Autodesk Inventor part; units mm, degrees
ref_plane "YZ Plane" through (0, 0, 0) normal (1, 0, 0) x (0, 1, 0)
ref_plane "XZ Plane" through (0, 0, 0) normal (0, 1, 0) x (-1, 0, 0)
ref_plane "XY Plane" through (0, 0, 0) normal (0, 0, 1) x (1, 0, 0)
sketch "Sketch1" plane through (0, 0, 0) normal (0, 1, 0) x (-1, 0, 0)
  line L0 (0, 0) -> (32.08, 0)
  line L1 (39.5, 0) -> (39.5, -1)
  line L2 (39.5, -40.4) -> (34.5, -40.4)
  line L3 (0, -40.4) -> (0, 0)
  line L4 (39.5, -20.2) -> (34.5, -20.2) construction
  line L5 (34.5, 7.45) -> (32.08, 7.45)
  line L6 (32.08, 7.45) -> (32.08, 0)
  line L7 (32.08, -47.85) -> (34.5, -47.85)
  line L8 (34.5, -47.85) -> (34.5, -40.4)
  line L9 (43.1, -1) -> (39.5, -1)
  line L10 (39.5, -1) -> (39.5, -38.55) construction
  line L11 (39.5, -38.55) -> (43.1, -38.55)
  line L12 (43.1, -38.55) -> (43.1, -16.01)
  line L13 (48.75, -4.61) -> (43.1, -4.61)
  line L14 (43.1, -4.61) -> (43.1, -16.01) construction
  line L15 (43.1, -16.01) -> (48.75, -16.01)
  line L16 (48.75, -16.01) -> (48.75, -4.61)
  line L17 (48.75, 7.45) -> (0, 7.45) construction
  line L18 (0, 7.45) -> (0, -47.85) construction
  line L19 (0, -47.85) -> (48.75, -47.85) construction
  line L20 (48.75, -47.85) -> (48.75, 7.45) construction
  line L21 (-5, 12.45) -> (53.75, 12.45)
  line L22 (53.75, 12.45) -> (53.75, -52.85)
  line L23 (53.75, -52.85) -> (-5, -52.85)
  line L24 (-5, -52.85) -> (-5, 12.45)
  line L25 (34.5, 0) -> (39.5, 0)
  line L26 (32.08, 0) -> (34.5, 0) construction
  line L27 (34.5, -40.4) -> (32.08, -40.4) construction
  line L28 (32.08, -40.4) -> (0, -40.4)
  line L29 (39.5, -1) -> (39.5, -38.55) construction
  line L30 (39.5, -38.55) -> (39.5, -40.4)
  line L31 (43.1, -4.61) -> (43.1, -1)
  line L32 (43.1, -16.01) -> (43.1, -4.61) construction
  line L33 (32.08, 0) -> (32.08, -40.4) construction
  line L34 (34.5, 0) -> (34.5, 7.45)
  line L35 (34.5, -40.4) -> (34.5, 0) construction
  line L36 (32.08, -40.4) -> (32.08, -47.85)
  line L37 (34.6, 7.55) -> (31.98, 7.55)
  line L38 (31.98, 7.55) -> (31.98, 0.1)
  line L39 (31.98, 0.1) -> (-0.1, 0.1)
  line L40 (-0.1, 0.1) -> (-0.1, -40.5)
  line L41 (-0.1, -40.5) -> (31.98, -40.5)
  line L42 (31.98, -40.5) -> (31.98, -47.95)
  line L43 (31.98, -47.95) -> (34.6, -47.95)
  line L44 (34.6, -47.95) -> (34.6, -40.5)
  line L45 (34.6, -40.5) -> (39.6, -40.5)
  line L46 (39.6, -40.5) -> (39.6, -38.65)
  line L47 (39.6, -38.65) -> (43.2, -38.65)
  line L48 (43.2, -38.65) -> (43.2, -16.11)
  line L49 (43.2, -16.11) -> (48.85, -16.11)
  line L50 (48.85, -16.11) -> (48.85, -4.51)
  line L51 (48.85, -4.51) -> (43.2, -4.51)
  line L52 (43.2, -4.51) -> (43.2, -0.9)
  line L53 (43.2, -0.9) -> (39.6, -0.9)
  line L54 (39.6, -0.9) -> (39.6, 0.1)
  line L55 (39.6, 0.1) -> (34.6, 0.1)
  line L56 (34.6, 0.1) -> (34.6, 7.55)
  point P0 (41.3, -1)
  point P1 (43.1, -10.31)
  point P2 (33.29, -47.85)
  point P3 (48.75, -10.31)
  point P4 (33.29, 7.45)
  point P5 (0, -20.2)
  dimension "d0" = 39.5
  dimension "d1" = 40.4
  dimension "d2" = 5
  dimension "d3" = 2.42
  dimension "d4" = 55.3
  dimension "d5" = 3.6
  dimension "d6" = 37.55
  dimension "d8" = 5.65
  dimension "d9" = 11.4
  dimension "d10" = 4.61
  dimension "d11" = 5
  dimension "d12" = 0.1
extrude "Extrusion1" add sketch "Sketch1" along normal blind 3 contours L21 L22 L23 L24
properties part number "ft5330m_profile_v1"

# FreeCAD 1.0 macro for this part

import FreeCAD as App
import Part
import Sketcher

V = App.Vector
Q = App.Units.Quantity

doc = App.newDocument("Part")
body = doc.addObject("PartDesign::Body", "Body")

# Sketch on XZ plane
sketch1 = doc.addObject("Sketcher::SketchObject", "Sketch")
body.addObject(sketch1)
sketch1.AttachmentSupport = (doc.XZ_Plane, [""])
sketch1.MapMode = "FlatFace"
sketch1.addGeometry(Part.LineSegment(V(-53.75, 12.45, 0), V(5, 12.45, 0)), False)
sketch1.addGeometry(Part.LineSegment(V(5, 12.45, 0), V(5, -52.85, 0)), False)
sketch1.addGeometry(Part.LineSegment(V(5, -52.85, 0), V(-53.75, -52.85, 0)), False)
sketch1.addGeometry(Part.LineSegment(V(-53.75, -52.85, 0), V(-53.75, 12.45, 0)), False)
sketch1.addGeometry(Part.LineSegment(V(-31.98, 7.55, 0), V(-34.6, 7.55, 0)), False)
sketch1.addGeometry(Part.LineSegment(V(-34.6, 7.55, 0), V(-34.6, 0.1, 0)), False)
sketch1.addGeometry(Part.LineSegment(V(-34.6, 0.1, 0), V(-39.6, 0.1, 0)), False)
sketch1.addGeometry(Part.LineSegment(V(-39.6, 0.1, 0), V(-39.6, -0.9, 0)), False)
sketch1.addGeometry(Part.LineSegment(V(-39.6, -0.9, 0), V(-43.2, -0.9, 0)), False)
sketch1.addGeometry(Part.LineSegment(V(-43.2, -0.9, 0), V(-43.2, -4.51, 0)), False)
sketch1.addGeometry(Part.LineSegment(V(-43.2, -4.51, 0), V(-48.85, -4.51, 0)), False)
sketch1.addGeometry(Part.LineSegment(V(-48.85, -4.51, 0), V(-48.85, -16.11, 0)), False)
sketch1.addGeometry(Part.LineSegment(V(-48.85, -16.11, 0), V(-43.2, -16.11, 0)), False)
sketch1.addGeometry(Part.LineSegment(V(-43.2, -16.11, 0), V(-43.2, -38.65, 0)), False)
sketch1.addGeometry(Part.LineSegment(V(-43.2, -38.65, 0), V(-39.6, -38.65, 0)), False)
sketch1.addGeometry(Part.LineSegment(V(-39.6, -38.65, 0), V(-39.6, -40.5, 0)), False)
sketch1.addGeometry(Part.LineSegment(V(-39.6, -40.5, 0), V(-34.6, -40.5, 0)), False)
sketch1.addGeometry(Part.LineSegment(V(-34.6, -40.5, 0), V(-34.6, -47.95, 0)), False)
sketch1.addGeometry(Part.LineSegment(V(-34.6, -47.95, 0), V(-31.98, -47.95, 0)), False)
sketch1.addGeometry(Part.LineSegment(V(-31.98, -47.95, 0), V(-31.98, -40.5, 0)), False)
sketch1.addGeometry(Part.LineSegment(V(-31.98, -40.5, 0), V(0.1, -40.5, 0)), False)
sketch1.addGeometry(Part.LineSegment(V(0.1, -40.5, 0), V(0.1, 0.1, 0)), False)
sketch1.addGeometry(Part.LineSegment(V(0.1, 0.1, 0), V(-31.98, 0.1, 0)), False)
sketch1.addGeometry(Part.LineSegment(V(-31.98, 0.1, 0), V(-31.98, 7.55, 0)), False)
sketch1.addConstraint(Sketcher.Constraint("Coincident", 0, 2, 1, 1))
sketch1.addConstraint(Sketcher.Constraint("Coincident", 1, 2, 2, 1))
sketch1.addConstraint(Sketcher.Constraint("Coincident", 2, 2, 3, 1))
sketch1.addConstraint(Sketcher.Constraint("Coincident", 3, 2, 0, 1))
sketch1.addConstraint(Sketcher.Constraint("Coincident", 4, 2, 5, 1))
sketch1.addConstraint(Sketcher.Constraint("Coincident", 5, 2, 6, 1))
sketch1.addConstraint(Sketcher.Constraint("Coincident", 6, 2, 7, 1))
sketch1.addConstraint(Sketcher.Constraint("Coincident", 7, 2, 8, 1))
sketch1.addConstraint(Sketcher.Constraint("Coincident", 8, 2, 9, 1))
sketch1.addConstraint(Sketcher.Constraint("Coincident", 9, 2, 10, 1))
sketch1.addConstraint(Sketcher.Constraint("Coincident", 10, 2, 11, 1))
sketch1.addConstraint(Sketcher.Constraint("Coincident", 11, 2, 12, 1))
sketch1.addConstraint(Sketcher.Constraint("Coincident", 12, 2, 13, 1))
sketch1.addConstraint(Sketcher.Constraint("Coincident", 13, 2, 14, 1))
sketch1.addConstraint(Sketcher.Constraint("Coincident", 14, 2, 15, 1))
sketch1.addConstraint(Sketcher.Constraint("Coincident", 15, 2, 16, 1))
sketch1.addConstraint(Sketcher.Constraint("Coincident", 16, 2, 17, 1))
sketch1.addConstraint(Sketcher.Constraint("Coincident", 17, 2, 18, 1))
sketch1.addConstraint(Sketcher.Constraint("Coincident", 18, 2, 19, 1))
sketch1.addConstraint(Sketcher.Constraint("Coincident", 19, 2, 20, 1))
sketch1.addConstraint(Sketcher.Constraint("Coincident", 20, 2, 21, 1))
sketch1.addConstraint(Sketcher.Constraint("Coincident", 21, 2, 22, 1))
sketch1.addConstraint(Sketcher.Constraint("Coincident", 22, 2, 23, 1))
sketch1.addConstraint(Sketcher.Constraint("Coincident", 23, 2, 4, 1))
sketch1.addConstraint(Sketcher.Constraint("Horizontal", 0))
sketch1.addConstraint(Sketcher.Constraint("Vertical", 1))
sketch1.addConstraint(Sketcher.Constraint("Horizontal", 2))
sketch1.addConstraint(Sketcher.Constraint("Vertical", 3))
sketch1.addConstraint(Sketcher.Constraint("Horizontal", 4))
sketch1.addConstraint(Sketcher.Constraint("Vertical", 5))
sketch1.addConstraint(Sketcher.Constraint("Horizontal", 6))
sketch1.addConstraint(Sketcher.Constraint("Vertical", 7))
sketch1.addConstraint(Sketcher.Constraint("Horizontal", 8))
sketch1.addConstraint(Sketcher.Constraint("Vertical", 9))
sketch1.addConstraint(Sketcher.Constraint("Horizontal", 10))
sketch1.addConstraint(Sketcher.Constraint("Vertical", 11))
sketch1.addConstraint(Sketcher.Constraint("Horizontal", 12))
sketch1.addConstraint(Sketcher.Constraint("Vertical", 13))
sketch1.addConstraint(Sketcher.Constraint("Horizontal", 14))
sketch1.addConstraint(Sketcher.Constraint("Vertical", 15))
sketch1.addConstraint(Sketcher.Constraint("Horizontal", 16))
sketch1.addConstraint(Sketcher.Constraint("Vertical", 17))
sketch1.addConstraint(Sketcher.Constraint("Horizontal", 18))
sketch1.addConstraint(Sketcher.Constraint("Vertical", 19))
sketch1.addConstraint(Sketcher.Constraint("Horizontal", 20))
sketch1.addConstraint(Sketcher.Constraint("Vertical", 21))
sketch1.addConstraint(Sketcher.Constraint("Horizontal", 22))
sketch1.addConstraint(Sketcher.Constraint("Vertical", 23))
sketch1.addConstraint(Sketcher.Constraint("Horizontal", 16, 2, 19, 2))
sketch1.addConstraint(Sketcher.Constraint("Horizontal", 6, 2, 21, 2))
sketch1.addConstraint(Sketcher.Constraint("Vertical", 9, 2, 12, 2))
sketch1.addConstraint(Sketcher.Constraint("Vertical", 7, 2, 14, 2))
sketch1.addConstraint(Sketcher.Constraint("Vertical", 5, 2, 16, 2))
sketch1.addConstraint(Sketcher.Constraint("Vertical", 19, 2, 22, 2))
sketch1.addConstraint(Sketcher.Constraint("Equal", 5, 17))
sketch1.addConstraint(Sketcher.Constraint("DistanceX", 6, 2, 6, 1, Q("5 mm")))
sketch1.addConstraint(Sketcher.Constraint("DistanceX", 8, 2, 8, 1, Q("3.6 mm")))
sketch1.addConstraint(Sketcher.Constraint("DistanceX", -1, 1, 0, 2, Q("5 mm")))
sketch1.addConstraint(Sketcher.Constraint("DistanceX", 10, 2, 10, 1, Q("5.65 mm")))
sketch1.addConstraint(Sketcher.Constraint("DistanceY", -1, 1, 5, 2, Q("0.1 mm")))
sketch1.addConstraint(Sketcher.Constraint("DistanceX", -1, 1, 20, 2, Q("0.1 mm")))
sketch1.addConstraint(Sketcher.Constraint("DistanceY", 7, 2, 7, 1, Q("1 mm")))
sketch1.addConstraint(Sketcher.Constraint("DistanceY", 9, 2, 6, 2, Q("4.61 mm")))
sketch1.addConstraint(Sketcher.Constraint("DistanceY", 1, 2, 1, 1, Q("65.3 mm")))
sketch1.addConstraint(Sketcher.Constraint("DistanceY", 11, 2, 11, 1, Q("11.6 mm")))
sketch1.addConstraint(Sketcher.Constraint("DistanceY", 21, 1, 21, 2, Q("40.6 mm")))
sketch1.addConstraint(Sketcher.Constraint("DistanceX", 0, 1, 0, 2, Q("58.75 mm")))
sketch1.addConstraint(Sketcher.Constraint("DistanceX", 4, 2, 4, 1, Q("2.62 mm")))
sketch1.addConstraint(Sketcher.Constraint("DistanceX", 20, 1, 20, 2, Q("32.08 mm")))
sketch1.addConstraint(Sketcher.Constraint("DistanceY", 5, 2, 5, 1, Q("7.45 mm")))
sketch1.addConstraint(Sketcher.Constraint("DistanceY", 13, 2, 13, 1, Q("22.54 mm")))
sketch1.addConstraint(Sketcher.Constraint("DistanceY", 4, 2, 3, 2, Q("4.9 mm")))
pad1 = doc.addObject("PartDesign::Pad", "Pad")
body.addObject(pad1)
pad1.Profile = sketch1
pad1.Length = 3
pad1.Reversed = True

doc.recompute()
